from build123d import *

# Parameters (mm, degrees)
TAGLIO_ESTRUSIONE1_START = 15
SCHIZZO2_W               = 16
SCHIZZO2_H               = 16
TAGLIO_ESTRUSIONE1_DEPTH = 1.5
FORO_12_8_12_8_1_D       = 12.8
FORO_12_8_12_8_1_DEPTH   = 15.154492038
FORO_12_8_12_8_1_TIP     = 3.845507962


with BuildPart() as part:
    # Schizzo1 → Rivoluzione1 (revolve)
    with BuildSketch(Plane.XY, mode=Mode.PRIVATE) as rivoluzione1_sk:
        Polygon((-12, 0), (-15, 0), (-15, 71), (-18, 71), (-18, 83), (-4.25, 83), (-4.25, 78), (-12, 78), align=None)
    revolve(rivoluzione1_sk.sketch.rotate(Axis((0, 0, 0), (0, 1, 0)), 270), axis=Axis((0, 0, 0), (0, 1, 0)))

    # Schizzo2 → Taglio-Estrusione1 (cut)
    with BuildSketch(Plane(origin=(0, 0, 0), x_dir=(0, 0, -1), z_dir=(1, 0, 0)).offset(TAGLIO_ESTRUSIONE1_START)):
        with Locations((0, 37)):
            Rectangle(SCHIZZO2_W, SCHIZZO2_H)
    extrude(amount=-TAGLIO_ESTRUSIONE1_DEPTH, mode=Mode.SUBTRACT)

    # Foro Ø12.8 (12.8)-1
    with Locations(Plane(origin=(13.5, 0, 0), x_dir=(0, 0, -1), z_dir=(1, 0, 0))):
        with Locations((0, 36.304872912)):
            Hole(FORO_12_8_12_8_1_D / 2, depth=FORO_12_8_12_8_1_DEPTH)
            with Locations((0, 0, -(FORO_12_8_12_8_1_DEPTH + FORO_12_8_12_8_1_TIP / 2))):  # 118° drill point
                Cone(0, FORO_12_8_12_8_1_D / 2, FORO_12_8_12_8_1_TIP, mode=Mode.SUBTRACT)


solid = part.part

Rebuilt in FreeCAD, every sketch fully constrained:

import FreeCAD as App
import Part
import Sketcher
Q = App.Units.Quantity


def add_polygon(sketch, points):
    """Adds a closed chain of lines whose ends are joined by coincident constraints."""
    first, n = sketch.GeometryCount, len(points)
    for a, b in zip(points, points[1:] + points[:1]):
        sketch.addGeometry(Part.LineSegment(App.Vector(*a, 0), App.Vector(*b, 0)), False)
    for i in range(n):
        sketch.addConstraint(Sketcher.Constraint("Coincident", first + i, 2, first + (i + 1) % n, 1))

doc = App.newDocument("Part")
body = doc.addObject("PartDesign::Body", "Body")

# Sketch on XY plane
sketch1 = body.newObject("Sketcher::SketchObject", "Sketch")
sketch1.AttachmentSupport = (doc.getObject("XY_Plane"), [""])
sketch1.MapMode = "FlatFace"
add_polygon(sketch1, [(-15, 0), (-12, 0), (-12, 78), (-4.2, 78), (-4.2, 83), (-18, 83), (-18, 71), (-15, 71)])  # lines 0-7
sketch1.addConstraint([
    Sketcher.Constraint("Horizontal", 0),
    Sketcher.Constraint("Vertical", 1),
    Sketcher.Constraint("Horizontal", 2),
    Sketcher.Constraint("Vertical", 3),
    Sketcher.Constraint("Horizontal", 4),
    Sketcher.Constraint("Vertical", 5),
    Sketcher.Constraint("Horizontal", 6),
    Sketcher.Constraint("Vertical", 7),
    Sketcher.Constraint("PointOnObject", 0, 2, -1),
    Sketcher.Constraint("Equal", 0, 6),
    Sketcher.Constraint("DistanceX", 0, 1, 0, 2, Q("3 mm")),
    Sketcher.Constraint("DistanceY", 1, 1, 1, 2, Q("78 mm")),
    Sketcher.Constraint("DistanceY", 3, 1, 3, 2, Q("5 mm")),
    Sketcher.Constraint("DistanceY", 5, 2, 5, 1, Q("12 mm")),
    Sketcher.Constraint("DistanceX", 0, 2, -1, 1, Q("12 mm")),
    Sketcher.Constraint("DistanceX", 2, 1, 2, 2, Q("7.75 mm")),
])
revolution = body.newObject("PartDesign::Revolution", "Revolution")
revolution.Profile = sketch1
revolution.ReferenceAxis = (sketch1, ["V_Axis"])
revolution.Angle = 360

# Sketch on YZ plane
sketch2 = body.newObject("Sketcher::SketchObject", "Sketch001")
sketch2.AttachmentSupport = (doc.getObject("YZ_Plane"), [""])
sketch2.MapMode = "FlatFace"
sketch2.AttachmentOffset = App.Placement(App.Vector(0, 0, 15), App.Rotation())
add_polygon(sketch2, [(45, 8), (29, 8), (29, -8), (45, -8)])  # lines 0-3
sketch2.addConstraint([
    Sketcher.Constraint("Horizontal", 0),
    Sketcher.Constraint("Vertical", 1),
    Sketcher.Constraint("Horizontal", 2),
    Sketcher.Constraint("Vertical", 3),
    Sketcher.Constraint("Equal", 2, 1),
    Sketcher.Constraint("DistanceX", 0, 2, 0, 1, Q("16 mm")),
    Sketcher.Constraint("DistanceX", -1, 1, 0, 2, Q("29 mm")),
    Sketcher.Constraint("DistanceY", -1, 1, 0, 2, Q("8 mm")),
])
pocket1 = body.newObject("PartDesign::Pocket", "Pocket")
pocket1.Profile = sketch2
pocket1.Length = 1.5

# Sketch on YZ plane
sketch3 = body.newObject("Sketcher::SketchObject", "Sketch002")
sketch3.AttachmentSupport = (doc.getObject("YZ_Plane"), [""])
sketch3.MapMode = "FlatFace"
sketch3.AttachmentOffset = App.Placement(App.Vector(0, 0, 13.5), App.Rotation())
sketch3.addGeometry(Part.Circle(App.Vector(36, 0, 0), App.Vector(0, 0, 1), 6), False)
sketch3.addConstraint([
    Sketcher.Constraint("PointOnObject", 0, 3, -1),
    Sketcher.Constraint("Diameter", 0, Q("12.8 mm")),
    Sketcher.Constraint("DistanceX", -1, 1, 0, 3, Q("36.304873 mm")),
])
doc.recompute()
hole = body.newObject("PartDesign::Hole", "Hole")
hole.Profile = sketch3
hole.ThreadType = "None"
hole.Diameter = 12.8
hole.DepthType = "Dimension"
hole.Depth = 15.154492
hole.DrillPoint = "Angled"
hole.DrillPointAngle = 118

doc.recompute()
